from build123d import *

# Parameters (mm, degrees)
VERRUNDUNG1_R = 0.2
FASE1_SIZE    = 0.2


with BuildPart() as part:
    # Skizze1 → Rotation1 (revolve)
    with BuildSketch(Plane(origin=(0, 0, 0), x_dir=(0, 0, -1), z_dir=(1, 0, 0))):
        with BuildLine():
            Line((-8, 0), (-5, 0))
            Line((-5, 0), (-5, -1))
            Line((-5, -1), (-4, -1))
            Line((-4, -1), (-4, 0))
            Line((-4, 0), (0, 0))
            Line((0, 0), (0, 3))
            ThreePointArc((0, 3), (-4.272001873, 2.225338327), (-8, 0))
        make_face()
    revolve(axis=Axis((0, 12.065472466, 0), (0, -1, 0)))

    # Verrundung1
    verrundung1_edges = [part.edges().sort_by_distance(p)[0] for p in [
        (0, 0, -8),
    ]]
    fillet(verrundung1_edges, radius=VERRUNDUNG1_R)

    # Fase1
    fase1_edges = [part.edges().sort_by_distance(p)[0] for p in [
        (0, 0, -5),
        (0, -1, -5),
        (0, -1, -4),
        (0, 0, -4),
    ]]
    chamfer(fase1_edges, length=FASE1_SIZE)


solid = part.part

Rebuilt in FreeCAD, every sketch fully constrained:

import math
import FreeCAD as App
import Part
import Sketcher


def edges_at(feature, points):
    """Names of the edges that pass closest to the given points."""
    edges = feature.Shape.Edges
    near = lambda p: min(range(len(edges)), key=lambda i: edges[i].distToShape(Part.Vertex(*p))[0])
    return sorted({f"Edge{near(p) + 1}" for p in points})

doc = App.newDocument("Part")
body = doc.addObject("PartDesign::Body", "Body")

# Sketch on YZ plane
sketch1 = body.newObject("Sketcher::SketchObject", "Sketch")
sketch1.AttachmentSupport = (doc.getObject("YZ_Plane"), [""])
sketch1.MapMode = "FlatFace"
sketch1.addGeometry([
    Part.LineSegment(App.Vector(0, 8, 0), App.Vector(0, 5, 0)),  # 0
    Part.LineSegment(App.Vector(0, 5, 0), App.Vector(-1, 5, 0)),  # 1
    Part.LineSegment(App.Vector(-1, 5, 0), App.Vector(-1, 4, 0)),  # 2
    Part.LineSegment(App.Vector(-1, 4, 0), App.Vector(0, 4, 0)),  # 3
    Part.LineSegment(App.Vector(0, 4, 0), App.Vector(0, 0, 0)),  # 4
    Part.LineSegment(App.Vector(0, 0, 0), App.Vector(3, 0, 0)),  # 5
    Part.ArcOfCircle(Part.Circle(App.Vector(-9.2, 0, 0), App.Vector(0, 0, 1), 12.2), math.radians(0), math.radians(41)),  # 6
], False)
sketch1.addConstraint([
    Sketcher.Constraint("Coincident", 0, 2, 1, 1),
    Sketcher.Constraint("Coincident", 1, 2, 2, 1),
    Sketcher.Constraint("Coincident", 2, 2, 3, 1),
    Sketcher.Constraint("Coincident", 3, 2, 4, 1),
    Sketcher.Constraint("Coincident", 4, 2, 5, 1),
    Sketcher.Constraint("Coincident", 5, 2, 6, 1),
    Sketcher.Constraint("Coincident", 6, 2, 0, 1),
    Sketcher.Constraint("Vertical", 0),
    Sketcher.Constraint("Horizontal", 1),
    Sketcher.Constraint("Vertical", 2),
    Sketcher.Constraint("Horizontal", 3),
    Sketcher.Constraint("Vertical", 4),
    Sketcher.Constraint("Horizontal", 5),
    Sketcher.Constraint("Coincident", 4, 2, -1, 1),
    Sketcher.Constraint("PointOnObject", 6, 3, -1),
    Sketcher.Constraint("PointOnObject", 0, 2, -2),
    Sketcher.Constraint("Equal", 5, 0),
    Sketcher.Constraint("Equal", 3, 2),
    Sketcher.Constraint("DistanceX", 1, 2, 1, 1, 1.0),
    Sketcher.Constraint("DistanceX", 5, 1, 5, 2, 3.0),
    Sketcher.Constraint("DistanceY", 4, 2, 4, 1, 4.0),
])
revolution = body.newObject("PartDesign::Revolution", "Revolution")
revolution.Profile = sketch1
revolution.ReferenceAxis = (sketch1, ["H_Axis"])
revolution.Angle = 360
doc.recompute()

fillet = body.newObject("PartDesign::Fillet", "Fillet")
fillet.Base = (revolution, edges_at(revolution, [(0, 0, -8)]))
fillet.Radius = 0.2
doc.recompute()

chamfer = body.newObject("PartDesign::Chamfer", "Chamfer")
chamfer.Base = (fillet, edges_at(fillet, [
    (0, 0, -5),
    (0, -1, -5),
    (0, -1, -4),
    (0, 0, -4),
]))
chamfer.Size = 0.2

doc.recompute()
